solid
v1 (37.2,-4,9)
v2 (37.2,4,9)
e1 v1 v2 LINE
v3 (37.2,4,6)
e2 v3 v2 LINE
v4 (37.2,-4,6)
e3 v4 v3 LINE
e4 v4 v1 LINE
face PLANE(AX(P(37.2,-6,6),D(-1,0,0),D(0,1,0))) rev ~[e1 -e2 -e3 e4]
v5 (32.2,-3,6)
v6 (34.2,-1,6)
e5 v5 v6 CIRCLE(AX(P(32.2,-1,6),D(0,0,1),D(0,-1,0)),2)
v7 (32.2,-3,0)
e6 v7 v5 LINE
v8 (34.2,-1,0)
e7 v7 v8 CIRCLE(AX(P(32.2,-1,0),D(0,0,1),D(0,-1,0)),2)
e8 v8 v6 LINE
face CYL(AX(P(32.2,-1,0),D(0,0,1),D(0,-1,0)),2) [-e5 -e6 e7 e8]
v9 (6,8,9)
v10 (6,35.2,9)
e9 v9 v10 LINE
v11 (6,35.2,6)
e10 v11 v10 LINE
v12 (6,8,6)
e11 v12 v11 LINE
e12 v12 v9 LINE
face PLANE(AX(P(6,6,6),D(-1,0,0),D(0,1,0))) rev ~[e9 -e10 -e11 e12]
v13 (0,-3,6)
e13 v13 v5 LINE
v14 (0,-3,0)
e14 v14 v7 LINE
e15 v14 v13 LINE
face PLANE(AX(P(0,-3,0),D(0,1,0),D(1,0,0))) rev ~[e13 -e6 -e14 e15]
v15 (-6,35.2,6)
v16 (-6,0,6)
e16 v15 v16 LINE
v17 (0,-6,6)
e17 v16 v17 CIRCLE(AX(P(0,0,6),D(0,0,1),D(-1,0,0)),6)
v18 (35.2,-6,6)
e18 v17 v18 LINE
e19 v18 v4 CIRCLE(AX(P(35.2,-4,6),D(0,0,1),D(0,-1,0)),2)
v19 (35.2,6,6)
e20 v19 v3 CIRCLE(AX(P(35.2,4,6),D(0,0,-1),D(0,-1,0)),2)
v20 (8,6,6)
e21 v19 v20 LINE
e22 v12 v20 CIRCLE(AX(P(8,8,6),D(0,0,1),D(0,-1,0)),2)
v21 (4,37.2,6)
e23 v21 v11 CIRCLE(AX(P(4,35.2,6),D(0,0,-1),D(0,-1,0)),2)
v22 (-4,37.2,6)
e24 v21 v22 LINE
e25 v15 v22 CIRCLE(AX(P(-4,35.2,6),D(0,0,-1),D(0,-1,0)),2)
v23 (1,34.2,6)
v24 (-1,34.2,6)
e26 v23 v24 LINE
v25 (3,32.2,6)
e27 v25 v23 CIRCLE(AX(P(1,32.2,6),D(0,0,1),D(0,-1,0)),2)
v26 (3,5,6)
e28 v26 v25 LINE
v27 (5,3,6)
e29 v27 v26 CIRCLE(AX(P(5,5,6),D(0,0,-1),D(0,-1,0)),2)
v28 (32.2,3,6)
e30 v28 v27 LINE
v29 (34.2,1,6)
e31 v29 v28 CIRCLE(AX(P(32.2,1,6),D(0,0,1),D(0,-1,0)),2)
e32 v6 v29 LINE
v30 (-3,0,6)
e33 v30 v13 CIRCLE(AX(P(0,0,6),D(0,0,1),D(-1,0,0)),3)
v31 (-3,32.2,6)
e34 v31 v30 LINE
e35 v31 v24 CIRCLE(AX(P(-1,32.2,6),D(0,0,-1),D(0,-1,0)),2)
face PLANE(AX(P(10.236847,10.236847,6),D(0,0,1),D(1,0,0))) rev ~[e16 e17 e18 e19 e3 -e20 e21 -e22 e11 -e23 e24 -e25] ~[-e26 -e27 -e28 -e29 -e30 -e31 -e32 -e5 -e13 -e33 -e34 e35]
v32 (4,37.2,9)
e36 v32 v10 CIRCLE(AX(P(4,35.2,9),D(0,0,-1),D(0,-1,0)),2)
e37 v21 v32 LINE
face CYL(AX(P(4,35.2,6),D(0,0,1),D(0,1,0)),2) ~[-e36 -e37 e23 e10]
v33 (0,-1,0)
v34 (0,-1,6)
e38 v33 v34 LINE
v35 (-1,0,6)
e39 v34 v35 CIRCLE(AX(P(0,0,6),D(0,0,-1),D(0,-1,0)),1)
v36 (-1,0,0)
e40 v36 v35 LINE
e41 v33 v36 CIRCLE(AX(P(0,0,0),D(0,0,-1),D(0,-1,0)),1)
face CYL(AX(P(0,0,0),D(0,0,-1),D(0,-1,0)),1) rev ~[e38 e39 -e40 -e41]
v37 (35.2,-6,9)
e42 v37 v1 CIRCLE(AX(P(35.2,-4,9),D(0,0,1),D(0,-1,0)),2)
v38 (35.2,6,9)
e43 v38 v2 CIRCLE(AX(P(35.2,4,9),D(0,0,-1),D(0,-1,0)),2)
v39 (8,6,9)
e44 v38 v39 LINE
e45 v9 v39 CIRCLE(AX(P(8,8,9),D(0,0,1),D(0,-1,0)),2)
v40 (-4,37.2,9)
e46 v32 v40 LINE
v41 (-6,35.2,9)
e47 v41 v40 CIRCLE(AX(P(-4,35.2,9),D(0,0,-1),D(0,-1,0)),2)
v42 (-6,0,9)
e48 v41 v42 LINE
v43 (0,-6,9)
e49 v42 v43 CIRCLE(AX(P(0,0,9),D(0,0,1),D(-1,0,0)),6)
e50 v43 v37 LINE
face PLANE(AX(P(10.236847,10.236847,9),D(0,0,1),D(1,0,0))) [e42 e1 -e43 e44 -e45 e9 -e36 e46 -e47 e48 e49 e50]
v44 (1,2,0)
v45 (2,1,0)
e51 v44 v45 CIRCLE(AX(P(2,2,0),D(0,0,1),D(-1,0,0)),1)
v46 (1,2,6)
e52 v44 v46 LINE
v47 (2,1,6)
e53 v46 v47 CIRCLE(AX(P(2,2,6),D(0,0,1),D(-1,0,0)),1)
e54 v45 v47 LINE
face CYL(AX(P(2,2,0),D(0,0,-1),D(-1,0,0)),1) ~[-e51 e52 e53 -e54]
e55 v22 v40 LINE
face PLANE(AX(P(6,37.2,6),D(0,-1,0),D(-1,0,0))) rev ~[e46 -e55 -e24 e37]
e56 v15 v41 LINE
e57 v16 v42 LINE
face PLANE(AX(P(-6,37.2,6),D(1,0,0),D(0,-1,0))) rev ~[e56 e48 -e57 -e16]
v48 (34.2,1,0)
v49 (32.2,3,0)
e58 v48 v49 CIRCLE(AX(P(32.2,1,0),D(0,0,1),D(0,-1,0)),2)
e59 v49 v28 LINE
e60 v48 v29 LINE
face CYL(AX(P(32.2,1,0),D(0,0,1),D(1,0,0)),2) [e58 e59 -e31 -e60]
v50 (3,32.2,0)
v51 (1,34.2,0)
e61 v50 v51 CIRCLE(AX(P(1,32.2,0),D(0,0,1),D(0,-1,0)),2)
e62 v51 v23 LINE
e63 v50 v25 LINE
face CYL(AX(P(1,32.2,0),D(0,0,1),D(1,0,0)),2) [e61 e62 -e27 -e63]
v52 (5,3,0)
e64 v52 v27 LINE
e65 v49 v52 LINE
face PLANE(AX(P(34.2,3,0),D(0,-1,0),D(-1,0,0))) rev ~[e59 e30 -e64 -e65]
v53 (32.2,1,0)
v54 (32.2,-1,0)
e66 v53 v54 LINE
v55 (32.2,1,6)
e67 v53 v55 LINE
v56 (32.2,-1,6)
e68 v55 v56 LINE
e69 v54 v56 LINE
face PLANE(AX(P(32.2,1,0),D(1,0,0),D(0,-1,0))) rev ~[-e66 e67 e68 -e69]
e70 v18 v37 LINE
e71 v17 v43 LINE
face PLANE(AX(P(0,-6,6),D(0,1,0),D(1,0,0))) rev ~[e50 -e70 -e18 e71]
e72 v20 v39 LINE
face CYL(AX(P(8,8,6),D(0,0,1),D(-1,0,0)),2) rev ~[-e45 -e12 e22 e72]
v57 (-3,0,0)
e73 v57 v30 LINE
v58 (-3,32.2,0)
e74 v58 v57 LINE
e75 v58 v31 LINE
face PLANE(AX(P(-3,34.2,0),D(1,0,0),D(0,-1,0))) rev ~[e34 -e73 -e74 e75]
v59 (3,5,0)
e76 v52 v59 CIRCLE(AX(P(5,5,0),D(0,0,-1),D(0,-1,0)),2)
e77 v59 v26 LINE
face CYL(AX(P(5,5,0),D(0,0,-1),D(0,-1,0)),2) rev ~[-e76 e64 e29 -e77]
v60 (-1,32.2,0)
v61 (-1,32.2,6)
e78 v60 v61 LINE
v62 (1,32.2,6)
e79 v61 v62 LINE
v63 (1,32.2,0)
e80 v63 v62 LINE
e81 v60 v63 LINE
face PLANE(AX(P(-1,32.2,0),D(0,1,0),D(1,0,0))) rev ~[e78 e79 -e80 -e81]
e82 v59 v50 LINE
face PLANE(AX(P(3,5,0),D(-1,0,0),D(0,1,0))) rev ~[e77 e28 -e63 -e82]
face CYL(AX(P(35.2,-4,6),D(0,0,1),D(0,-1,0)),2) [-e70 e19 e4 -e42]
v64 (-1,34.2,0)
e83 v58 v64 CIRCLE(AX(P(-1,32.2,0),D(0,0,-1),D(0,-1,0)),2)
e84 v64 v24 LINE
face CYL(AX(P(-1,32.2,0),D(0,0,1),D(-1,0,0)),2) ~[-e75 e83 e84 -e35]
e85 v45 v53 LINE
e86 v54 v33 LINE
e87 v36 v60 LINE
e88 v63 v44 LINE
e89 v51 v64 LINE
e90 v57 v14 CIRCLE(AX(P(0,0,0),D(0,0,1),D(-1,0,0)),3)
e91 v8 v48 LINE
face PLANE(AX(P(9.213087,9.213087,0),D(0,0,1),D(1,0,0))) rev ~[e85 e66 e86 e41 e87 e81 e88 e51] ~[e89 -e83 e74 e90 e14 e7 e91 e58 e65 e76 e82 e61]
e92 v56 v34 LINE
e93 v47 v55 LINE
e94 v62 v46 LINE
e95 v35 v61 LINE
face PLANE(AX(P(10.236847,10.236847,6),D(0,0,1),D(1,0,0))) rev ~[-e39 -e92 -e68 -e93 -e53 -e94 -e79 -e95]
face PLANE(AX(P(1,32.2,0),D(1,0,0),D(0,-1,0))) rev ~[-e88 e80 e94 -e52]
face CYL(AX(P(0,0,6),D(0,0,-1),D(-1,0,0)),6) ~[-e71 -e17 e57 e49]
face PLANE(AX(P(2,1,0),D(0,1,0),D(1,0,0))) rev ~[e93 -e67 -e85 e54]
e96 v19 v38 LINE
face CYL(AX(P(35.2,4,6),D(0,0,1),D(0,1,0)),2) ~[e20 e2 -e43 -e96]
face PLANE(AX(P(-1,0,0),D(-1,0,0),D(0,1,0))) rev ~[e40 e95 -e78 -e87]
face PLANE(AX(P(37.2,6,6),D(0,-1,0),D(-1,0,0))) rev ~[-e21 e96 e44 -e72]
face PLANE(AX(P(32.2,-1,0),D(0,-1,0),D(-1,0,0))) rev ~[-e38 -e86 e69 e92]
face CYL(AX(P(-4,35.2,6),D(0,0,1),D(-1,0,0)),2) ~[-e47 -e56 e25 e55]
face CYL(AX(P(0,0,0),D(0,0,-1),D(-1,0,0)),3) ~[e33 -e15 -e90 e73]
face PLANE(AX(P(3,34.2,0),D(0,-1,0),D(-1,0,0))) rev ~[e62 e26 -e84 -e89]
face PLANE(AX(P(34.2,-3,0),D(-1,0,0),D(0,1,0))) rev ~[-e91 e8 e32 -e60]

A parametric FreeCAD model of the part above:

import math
import FreeCAD as App
import Part
import Sketcher


def edges_at(feature, points):
    """Names of the edges that pass closest to the given points."""
    edges = feature.Shape.Edges
    near = lambda p: min(range(len(edges)), key=lambda i: edges[i].distToShape(Part.Vertex(*p))[0])
    return sorted({f"Edge{near(p) + 1}" for p in points})

doc = App.newDocument("Part")
body = doc.addObject("PartDesign::Body", "Body")

sketch1 = body.newObject("Sketcher::SketchObject", "Sketch")
sketch1.AttachmentSupport = (doc.getObject("XY_Plane"), [""])
sketch1.MapMode = "FlatFace"
sketch1.addGeometry([
    Part.LineSegment(App.Vector(-3, 34.2, 0), App.Vector(-3, 0, 0)),
    Part.ArcOfCircle(Part.Circle(App.Vector(0, 0, 0), App.Vector(0, 0, 1), 3), math.radians(180), math.radians(270)),
    Part.LineSegment(App.Vector(0, -3, 0), App.Vector(34.2, -3, 0)),
    Part.LineSegment(App.Vector(34.2, -3, 0), App.Vector(34.2, 3, 0)),
    Part.LineSegment(App.Vector(34.2, 3, 0), App.Vector(5, 3, 0)),
    Part.ArcOfCircle(Part.Circle(App.Vector(5, 5, 0), App.Vector(0, 0, 1), 2), math.radians(180), math.radians(270)),
    Part.LineSegment(App.Vector(3, 5, 0), App.Vector(3, 34.2, 0)),
    Part.LineSegment(App.Vector(3, 34.2, 0), App.Vector(-3, 34.2, 0)),
    Part.LineSegment(App.Vector(-1, 32.2, 0), App.Vector(1, 32.2, 0)),
    Part.LineSegment(App.Vector(1, 32.2, 0), App.Vector(1, 2, 0)),
    Part.ArcOfCircle(Part.Circle(App.Vector(2, 2, 0), App.Vector(0, 0, 1), 1), math.radians(180), math.radians(270)),
    Part.LineSegment(App.Vector(2, 1, 0), App.Vector(32.2, 1, 0)),
    Part.LineSegment(App.Vector(32.2, 1, 0), App.Vector(32.2, -1, 0)),
    Part.LineSegment(App.Vector(32.2, -1, 0), App.Vector(0, -1, 0)),
    Part.ArcOfCircle(Part.Circle(App.Vector(0, 0, 0), App.Vector(0, 0, 1), 1), math.radians(180), math.radians(270)),
    Part.LineSegment(App.Vector(-1, 0, 0), App.Vector(-1, 32.2, 0)),
], False)
sketch1.addConstraint([
    Sketcher.Constraint("Tangent", 0, 2, 1, 1),
    Sketcher.Constraint("Tangent", 1, 2, 2, 1),
    Sketcher.Constraint("Coincident", 2, 2, 3, 1),
    Sketcher.Constraint("Coincident", 3, 2, 4, 1),
    Sketcher.Constraint("Tangent", 4, 2, 5, 2),
    Sketcher.Constraint("Tangent", 5, 1, 6, 1),
    Sketcher.Constraint("Coincident", 6, 2, 7, 1),
    Sketcher.Constraint("Coincident", 7, 2, 0, 1),
    Sketcher.Constraint("Coincident", 8, 2, 9, 1),
    Sketcher.Constraint("Tangent", 9, 2, 10, 1),
    Sketcher.Constraint("Tangent", 10, 2, 11, 1),
    Sketcher.Constraint("Coincident", 11, 2, 12, 1),
    Sketcher.Constraint("Coincident", 12, 2, 13, 1),
    Sketcher.Constraint("Tangent", 13, 2, 14, 2),
    Sketcher.Constraint("Tangent", 14, 1, 15, 1),
    Sketcher.Constraint("Coincident", 15, 2, 8, 1),
    Sketcher.Constraint("Vertical", 0),
    Sketcher.Constraint("Horizontal", 2),
    Sketcher.Constraint("Vertical", 3),
    Sketcher.Constraint("Horizontal", 4),
    Sketcher.Constraint("Vertical", 6),
    Sketcher.Constraint("Horizontal", 7),
    Sketcher.Constraint("Horizontal", 8),
    Sketcher.Constraint("Vertical", 9),
    Sketcher.Constraint("Horizontal", 11),
    Sketcher.Constraint("Vertical", 12),
    Sketcher.Constraint("Horizontal", 13),
    Sketcher.Constraint("Vertical", 15),
    Sketcher.Constraint("Coincident", 1, 3, -1, 1),
    Sketcher.Constraint("Coincident", 14, 3, -1, 1),
    Sketcher.Constraint("Equal", 10, 14),
    Sketcher.Constraint("Equal", 2, 0),
    Sketcher.Constraint("Equal", 7, 3),
    Sketcher.Constraint("Equal", 11, 9),
    Sketcher.Constraint("Equal", 8, 12),
    Sketcher.Constraint("Radius", 1, 3.0),
    Sketcher.Constraint("Radius", 5, 2.0),
    Sketcher.Constraint("Radius", 10, 1.0),
    Sketcher.Constraint("DistanceX", 7, 2, 7, 1, 6.0),
    Sketcher.Constraint("DistanceX", 8, 1, 8, 2, 2.0),
    Sketcher.Constraint("DistanceX", 2, 1, 2, 2, 34.2),
    Sketcher.Constraint("DistanceX", 11, 1, 11, 2, 30.2),
])
pad1 = body.newObject("PartDesign::Pad", "Pad")
pad1.Profile = sketch1
pad1.Length = 6

sketch2 = body.newObject("Sketcher::SketchObject", "Sketch001")
sketch2.AttachmentSupport = (doc.getObject("XY_Plane"), [""])
sketch2.MapMode = "FlatFace"
sketch2.AttachmentOffset = App.Placement(App.Vector(0, 0, 6), App.Rotation())
sketch2.addGeometry([
    Part.LineSegment(App.Vector(-6, 37, 0), App.Vector(-6, 0, 0)),
    Part.ArcOfCircle(Part.Circle(App.Vector(0, 0, 0), App.Vector(0, 0, 1), 6), math.radians(180), math.radians(270)),
    Part.LineSegment(App.Vector(0, -6, 0), App.Vector(37, -6, 0)),
    Part.LineSegment(App.Vector(37, -6, 0), App.Vector(37, 6, 0)),
    Part.LineSegment(App.Vector(37, 6, 0), App.Vector(6, 6, 0)),
    Part.LineSegment(App.Vector(6, 6, 0), App.Vector(6, 37, 0)),
    Part.LineSegment(App.Vector(6, 37, 0), App.Vector(-6, 37, 0)),
], False)
sketch2.addConstraint([
    Sketcher.Constraint("Tangent", 0, 2, 1, 1),
    Sketcher.Constraint("Tangent", 1, 2, 2, 1),
    Sketcher.Constraint("Coincident", 2, 2, 3, 1),
    Sketcher.Constraint("Coincident", 3, 2, 4, 1),
    Sketcher.Constraint("Coincident", 4, 2, 5, 1),
    Sketcher.Constraint("Coincident", 5, 2, 6, 1),
    Sketcher.Constraint("Coincident", 6, 2, 0, 1),
    Sketcher.Constraint("Vertical", 0),
    Sketcher.Constraint("Horizontal", 2),
    Sketcher.Constraint("Vertical", 3),
    Sketcher.Constraint("Horizontal", 4),
    Sketcher.Constraint("Vertical", 5),
    Sketcher.Constraint("Horizontal", 6),
    Sketcher.Constraint("Coincident", 1, 3, -1, 1),
    Sketcher.Constraint("Equal", 2, 0),
    Sketcher.Constraint("Equal", 6, 3),
    Sketcher.Constraint("Radius", 1, 6.0),
    Sketcher.Constraint("DistanceX", 6, 2, 6, 1, 12.0),
    Sketcher.Constraint("DistanceX", 2, 1, 2, 2, 37.2),
])
pad2 = body.newObject("PartDesign::Pad", "Pad001")
pad2.Profile = sketch2
pad2.Length = 3
doc.recompute()

fillet = body.newObject("PartDesign::Fillet", "Fillet")
fillet.Base = (pad2, edges_at(pad2, [
    (6, 37.2, 7.5),
    (6, 6, 7.5),
    (37.2, 6, 7.5),
    (37.2, -6, 7.5),
    (-6, 37.2, 7.5),
]))
fillet.Radius = 2
doc.recompute()

fillet2 = body.newObject("PartDesign::Fillet", "Fillet001")
fillet2.Base = (fillet, edges_at(fillet, [
    (-3, 34.2, 3),
    (3, 34.2, 3),
    (34.2, 3, 3),
    (34.2, -3, 3),
]))
fillet2.Radius = 2

doc.recompute()
